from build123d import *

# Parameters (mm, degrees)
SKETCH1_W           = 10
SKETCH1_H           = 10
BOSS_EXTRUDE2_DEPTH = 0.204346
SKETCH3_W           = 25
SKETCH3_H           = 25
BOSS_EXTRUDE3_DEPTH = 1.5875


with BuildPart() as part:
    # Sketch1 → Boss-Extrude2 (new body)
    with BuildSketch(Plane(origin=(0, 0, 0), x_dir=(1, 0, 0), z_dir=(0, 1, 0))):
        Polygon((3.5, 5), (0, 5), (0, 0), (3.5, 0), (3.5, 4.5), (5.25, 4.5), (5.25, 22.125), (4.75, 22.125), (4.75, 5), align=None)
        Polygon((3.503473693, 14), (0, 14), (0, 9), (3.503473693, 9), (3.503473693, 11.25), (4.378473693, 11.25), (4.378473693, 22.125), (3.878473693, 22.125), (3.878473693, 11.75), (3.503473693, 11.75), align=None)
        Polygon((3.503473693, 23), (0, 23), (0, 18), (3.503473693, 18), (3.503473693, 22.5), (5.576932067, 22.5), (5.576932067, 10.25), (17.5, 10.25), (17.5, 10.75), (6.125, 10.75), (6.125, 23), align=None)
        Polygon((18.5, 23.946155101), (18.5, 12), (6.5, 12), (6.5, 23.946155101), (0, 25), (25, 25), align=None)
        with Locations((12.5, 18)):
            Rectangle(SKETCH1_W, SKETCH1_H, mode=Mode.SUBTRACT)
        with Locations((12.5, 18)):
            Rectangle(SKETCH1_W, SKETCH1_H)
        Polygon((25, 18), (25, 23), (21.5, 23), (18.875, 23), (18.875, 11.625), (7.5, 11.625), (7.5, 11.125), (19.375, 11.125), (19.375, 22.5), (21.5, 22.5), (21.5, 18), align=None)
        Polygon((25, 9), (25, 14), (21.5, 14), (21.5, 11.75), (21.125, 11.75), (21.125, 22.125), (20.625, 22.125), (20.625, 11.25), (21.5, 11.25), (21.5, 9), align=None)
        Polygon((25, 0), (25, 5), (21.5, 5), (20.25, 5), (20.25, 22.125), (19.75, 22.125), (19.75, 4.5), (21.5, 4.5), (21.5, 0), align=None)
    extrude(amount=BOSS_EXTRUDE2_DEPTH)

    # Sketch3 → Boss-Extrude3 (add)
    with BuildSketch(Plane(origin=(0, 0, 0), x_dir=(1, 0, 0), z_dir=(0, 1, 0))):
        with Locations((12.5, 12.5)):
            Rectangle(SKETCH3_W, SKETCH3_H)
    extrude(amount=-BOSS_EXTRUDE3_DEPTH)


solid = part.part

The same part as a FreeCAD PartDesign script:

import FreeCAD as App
import Part
import Sketcher

V = App.Vector
Q = App.Units.Quantity

doc = App.newDocument("Part")
body = doc.addObject("PartDesign::Body", "Body")
body.AllowCompound = True

sketch1 = doc.addObject("Sketcher::SketchObject", "Sketch")
body.addObject(sketch1)
sketch1.AttachmentSupport = (doc.XZ_Plane, [""])
sketch1.MapMode = "FlatFace"
sketch1.addGeometry(Part.LineSegment(V(0, -5, 0), V(0, 0, 0)), False)
sketch1.addGeometry(Part.LineSegment(V(0, 0, 0), V(3.5, 0, 0)), False)
sketch1.addGeometry(Part.LineSegment(V(3.5, 0, 0), V(3.5, -4.5, 0)), False)
sketch1.addGeometry(Part.LineSegment(V(3.5, -4.5, 0), V(5.25, -4.5, 0)), False)
sketch1.addGeometry(Part.LineSegment(V(5.25, -4.5, 0), V(5.25, -22.125, 0)), False)
sketch1.addGeometry(Part.LineSegment(V(5.25, -22.125, 0), V(4.75, -22.125, 0)), False)
sketch1.addGeometry(Part.LineSegment(V(4.75, -22.125, 0), V(4.75, -5, 0)), False)
sketch1.addGeometry(Part.LineSegment(V(4.75, -5, 0), V(0, -5, 0)), False)
sketch1.addGeometry(Part.LineSegment(V(3.503474, -14, 0), V(0, -14, 0)), False)
sketch1.addGeometry(Part.LineSegment(V(0, -14, 0), V(0, -9, 0)), False)
sketch1.addGeometry(Part.LineSegment(V(0, -9, 0), V(3.503474, -9, 0)), False)
sketch1.addGeometry(Part.LineSegment(V(3.503474, -9, 0), V(3.503474, -11.25, 0)), False)
sketch1.addGeometry(Part.LineSegment(V(3.503474, -11.25, 0), V(4.378474, -11.25, 0)), False)
sketch1.addGeometry(Part.LineSegment(V(4.378474, -11.25, 0), V(4.378474, -22.125, 0)), False)
sketch1.addGeometry(Part.LineSegment(V(4.378474, -22.125, 0), V(3.878474, -22.125, 0)), False)
sketch1.addGeometry(Part.LineSegment(V(3.878474, -22.125, 0), V(3.878474, -11.75, 0)), False)
sketch1.addGeometry(Part.LineSegment(V(3.878474, -11.75, 0), V(3.503474, -11.75, 0)), False)
sketch1.addGeometry(Part.LineSegment(V(3.503474, -11.75, 0), V(3.503474, -14, 0)), False)
sketch1.addGeometry(Part.LineSegment(V(0, -23, 0), V(0, -18, 0)), False)
sketch1.addGeometry(Part.LineSegment(V(0, -18, 0), V(3.503474, -18, 0)), False)
sketch1.addGeometry(Part.LineSegment(V(3.503474, -18, 0), V(3.503474, -22.5, 0)), False)
sketch1.addGeometry(Part.LineSegment(V(3.503474, -22.5, 0), V(5.576932, -22.5, 0)), False)
sketch1.addGeometry(Part.LineSegment(V(5.576932, -22.5, 0), V(5.576932, -10.25, 0)), False)
sketch1.addGeometry(Part.LineSegment(V(5.576932, -10.25, 0), V(17.5, -10.25, 0)), False)
sketch1.addGeometry(Part.LineSegment(V(17.5, -10.25, 0), V(17.5, -10.75, 0)), False)
sketch1.addGeometry(Part.LineSegment(V(17.5, -10.75, 0), V(6.125, -10.75, 0)), False)
sketch1.addGeometry(Part.LineSegment(V(6.125, -10.75, 0), V(6.125, -23, 0)), False)
sketch1.addGeometry(Part.LineSegment(V(6.125, -23, 0), V(0, -23, 0)), False)
sketch1.addGeometry(Part.LineSegment(V(18.5, -12, 0), V(18.5, -23.946155, 0)), False)
sketch1.addGeometry(Part.LineSegment(V(18.5, -23.946155, 0), V(25, -25, 0)), False)
sketch1.addGeometry(Part.LineSegment(V(25, -25, 0), V(0, -25, 0)), False)
sketch1.addGeometry(Part.LineSegment(V(0, -25, 0), V(6.5, -23.946155, 0)), False)
sketch1.addGeometry(Part.LineSegment(V(6.5, -23.946155, 0), V(6.5, -12, 0)), False)
sketch1.addGeometry(Part.LineSegment(V(6.5, -12, 0), V(18.5, -12, 0)), False)
sketch1.addGeometry(Part.LineSegment(V(25, -18, 0), V(25, -23, 0)), False)
sketch1.addGeometry(Part.LineSegment(V(25, -23, 0), V(18.875, -23, 0)), False)
sketch1.addGeometry(Part.LineSegment(V(18.875, -23, 0), V(18.875, -11.625, 0)), False)
sketch1.addGeometry(Part.LineSegment(V(18.875, -11.625, 0), V(7.5, -11.625, 0)), False)
sketch1.addGeometry(Part.LineSegment(V(7.5, -11.625, 0), V(7.5, -11.125, 0)), False)
sketch1.addGeometry(Part.LineSegment(V(7.5, -11.125, 0), V(19.375, -11.125, 0)), False)
sketch1.addGeometry(Part.LineSegment(V(19.375, -11.125, 0), V(19.375, -22.5, 0)), False)
sketch1.addGeometry(Part.LineSegment(V(19.375, -22.5, 0), V(21.5, -22.5, 0)), False)
sketch1.addGeometry(Part.LineSegment(V(21.5, -22.5, 0), V(21.5, -18, 0)), False)
sketch1.addGeometry(Part.LineSegment(V(21.5, -18, 0), V(25, -18, 0)), False)
sketch1.addGeometry(Part.LineSegment(V(25, -9, 0), V(25, -14, 0)), False)
sketch1.addGeometry(Part.LineSegment(V(25, -14, 0), V(21.5, -14, 0)), False)
sketch1.addGeometry(Part.LineSegment(V(21.5, -14, 0), V(21.5, -11.75, 0)), False)
sketch1.addGeometry(Part.LineSegment(V(21.5, -11.75, 0), V(21.125, -11.75, 0)), False)
sketch1.addGeometry(Part.LineSegment(V(21.125, -11.75, 0), V(21.125, -22.125, 0)), False)
sketch1.addGeometry(Part.LineSegment(V(21.125, -22.125, 0), V(20.625, -22.125, 0)), False)
sketch1.addGeometry(Part.LineSegment(V(20.625, -22.125, 0), V(20.625, -11.25, 0)), False)
sketch1.addGeometry(Part.LineSegment(V(20.625, -11.25, 0), V(21.5, -11.25, 0)), False)
sketch1.addGeometry(Part.LineSegment(V(21.5, -11.25, 0), V(21.5, -9, 0)), False)
sketch1.addGeometry(Part.LineSegment(V(21.5, -9, 0), V(25, -9, 0)), False)
sketch1.addGeometry(Part.LineSegment(V(25, 0, 0), V(25, -5, 0)), False)
sketch1.addGeometry(Part.LineSegment(V(25, -5, 0), V(20.25, -5, 0)), False)
sketch1.addGeometry(Part.LineSegment(V(20.25, -5, 0), V(20.25, -22.125, 0)), False)
sketch1.addGeometry(Part.LineSegment(V(20.25, -22.125, 0), V(19.75, -22.125, 0)), False)
sketch1.addGeometry(Part.LineSegment(V(19.75, -22.125, 0), V(19.75, -4.5, 0)), False)
sketch1.addGeometry(Part.LineSegment(V(19.75, -4.5, 0), V(21.5, -4.5, 0)), False)
sketch1.addGeometry(Part.LineSegment(V(21.5, -4.5, 0), V(21.5, 0, 0)), False)
sketch1.addGeometry(Part.LineSegment(V(21.5, 0, 0), V(25, 0, 0)), False)
sketch1.addConstraint(Sketcher.Constraint("Coincident", 0, 2, 1, 1))
sketch1.addConstraint(Sketcher.Constraint("Coincident", 1, 2, 2, 1))
sketch1.addConstraint(Sketcher.Constraint("Coincident", 2, 2, 3, 1))
sketch1.addConstraint(Sketcher.Constraint("Coincident", 3, 2, 4, 1))
sketch1.addConstraint(Sketcher.Constraint("Coincident", 4, 2, 5, 1))
sketch1.addConstraint(Sketcher.Constraint("Coincident", 5, 2, 6, 1))
sketch1.addConstraint(Sketcher.Constraint("Coincident", 6, 2, 7, 1))
sketch1.addConstraint(Sketcher.Constraint("Coincident", 7, 2, 0, 1))
sketch1.addConstraint(Sketcher.Constraint("Coincident", 8, 2, 9, 1))
sketch1.addConstraint(Sketcher.Constraint("Coincident", 9, 2, 10, 1))
sketch1.addConstraint(Sketcher.Constraint("Coincident", 10, 2, 11, 1))
sketch1.addConstraint(Sketcher.Constraint("Coincident", 11, 2, 12, 1))
sketch1.addConstraint(Sketcher.Constraint("Coincident", 12, 2, 13, 1))
sketch1.addConstraint(Sketcher.Constraint("Coincident", 13, 2, 14, 1))
sketch1.addConstraint(Sketcher.Constraint("Coincident", 14, 2, 15, 1))
sketch1.addConstraint(Sketcher.Constraint("Coincident", 15, 2, 16, 1))
sketch1.addConstraint(Sketcher.Constraint("Coincident", 16, 2, 17, 1))
sketch1.addConstraint(Sketcher.Constraint("Coincident", 17, 2, 8, 1))
sketch1.addConstraint(Sketcher.Constraint("Coincident", 18, 2, 19, 1))
sketch1.addConstraint(Sketcher.Constraint("Coincident", 19, 2, 20, 1))
sketch1.addConstraint(Sketcher.Constraint("Coincident", 20, 2, 21, 1))
sketch1.addConstraint(Sketcher.Constraint("Coincident", 21, 2, 22, 1))
sketch1.addConstraint(Sketcher.Constraint("Coincident", 22, 2, 23, 1))
sketch1.addConstraint(Sketcher.Constraint("Coincident", 23, 2, 24, 1))
sketch1.addConstraint(Sketcher.Constraint("Coincident", 24, 2, 25, 1))
sketch1.addConstraint(Sketcher.Constraint("Coincident", 25, 2, 26, 1))
sketch1.addConstraint(Sketcher.Constraint("Coincident", 26, 2, 27, 1))
sketch1.addConstraint(Sketcher.Constraint("Coincident", 27, 2, 18, 1))
sketch1.addConstraint(Sketcher.Constraint("Coincident", 28, 2, 29, 1))
sketch1.addConstraint(Sketcher.Constraint("Coincident", 29, 2, 30, 1))
sketch1.addConstraint(Sketcher.Constraint("Coincident", 30, 2, 31, 1))
sketch1.addConstraint(Sketcher.Constraint("Coincident", 31, 2, 32, 1))
sketch1.addConstraint(Sketcher.Constraint("Coincident", 32, 2, 33, 1))
sketch1.addConstraint(Sketcher.Constraint("Coincident", 33, 2, 28, 1))
sketch1.addConstraint(Sketcher.Constraint("Coincident", 34, 2, 35, 1))
sketch1.addConstraint(Sketcher.Constraint("Coincident", 35, 2, 36, 1))
sketch1.addConstraint(Sketcher.Constraint("Coincident", 36, 2, 37, 1))
sketch1.addConstraint(Sketcher.Constraint("Coincident", 37, 2, 38, 1))
sketch1.addConstraint(Sketcher.Constraint("Coincident", 38, 2, 39, 1))
sketch1.addConstraint(Sketcher.Constraint("Coincident", 39, 2, 40, 1))
sketch1.addConstraint(Sketcher.Constraint("Coincident", 40, 2, 41, 1))
sketch1.addConstraint(Sketcher.Constraint("Coincident", 41, 2, 42, 1))
sketch1.addConstraint(Sketcher.Constraint("Coincident", 42, 2, 43, 1))
sketch1.addConstraint(Sketcher.Constraint("Coincident", 43, 2, 34, 1))
sketch1.addConstraint(Sketcher.Constraint("Coincident", 44, 2, 45, 1))
sketch1.addConstraint(Sketcher.Constraint("Coincident", 45, 2, 46, 1))
sketch1.addConstraint(Sketcher.Constraint("Coincident", 46, 2, 47, 1))
sketch1.addConstraint(Sketcher.Constraint("Coincident", 47, 2, 48, 1))
sketch1.addConstraint(Sketcher.Constraint("Coincident", 48, 2, 49, 1))
sketch1.addConstraint(Sketcher.Constraint("Coincident", 49, 2, 50, 1))
sketch1.addConstraint(Sketcher.Constraint("Coincident", 50, 2, 51, 1))
sketch1.addConstraint(Sketcher.Constraint("Coincident", 51, 2, 52, 1))
sketch1.addConstraint(Sketcher.Constraint("Coincident", 52, 2, 53, 1))
sketch1.addConstraint(Sketcher.Constraint("Coincident", 53, 2, 44, 1))
sketch1.addConstraint(Sketcher.Constraint("Coincident", 54, 2, 55, 1))
sketch1.addConstraint(Sketcher.Constraint("Coincident", 55, 2, 56, 1))
sketch1.addConstraint(Sketcher.Constraint("Coincident", 56, 2, 57, 1))
sketch1.addConstraint(Sketcher.Constraint("Coincident", 57, 2, 58, 1))
sketch1.addConstraint(Sketcher.Constraint("Coincident", 58, 2, 59, 1))
sketch1.addConstraint(Sketcher.Constraint("Coincident", 59, 2, 60, 1))
sketch1.addConstraint(Sketcher.Constraint("Coincident", 60, 2, 61, 1))
sketch1.addConstraint(Sketcher.Constraint("Coincident", 61, 2, 54, 1))
sketch1.addConstraint(Sketcher.Constraint("Vertical", 0))
sketch1.addConstraint(Sketcher.Constraint("Horizontal", 1))
sketch1.addConstraint(Sketcher.Constraint("Vertical", 2))
sketch1.addConstraint(Sketcher.Constraint("Horizontal", 3))
sketch1.addConstraint(Sketcher.Constraint("Vertical", 4))
sketch1.addConstraint(Sketcher.Constraint("Horizontal", 5))
sketch1.addConstraint(Sketcher.Constraint("Vertical", 6))
sketch1.addConstraint(Sketcher.Constraint("Horizontal", 7))
sketch1.addConstraint(Sketcher.Constraint("Horizontal", 8))
sketch1.addConstraint(Sketcher.Constraint("Vertical", 9))
sketch1.addConstraint(Sketcher.Constraint("Horizontal", 10))
sketch1.addConstraint(Sketcher.Constraint("Vertical", 11))
sketch1.addConstraint(Sketcher.Constraint("Horizontal", 12))
sketch1.addConstraint(Sketcher.Constraint("Vertical", 13))
sketch1.addConstraint(Sketcher.Constraint("Horizontal", 14))
sketch1.addConstraint(Sketcher.Constraint("Vertical", 15))
sketch1.addConstraint(Sketcher.Constraint("Horizontal", 16))
sketch1.addConstraint(Sketcher.Constraint("Vertical", 17))
sketch1.addConstraint(Sketcher.Constraint("Vertical", 18))
sketch1.addConstraint(Sketcher.Constraint("Horizontal", 19))
sketch1.addConstraint(Sketcher.Constraint("Vertical", 20))
sketch1.addConstraint(Sketcher.Constraint("Horizontal", 21))
sketch1.addConstraint(Sketcher.Constraint("Vertical", 22))
sketch1.addConstraint(Sketcher.Constraint("Horizontal", 23))
sketch1.addConstraint(Sketcher.Constraint("Vertical", 24))
sketch1.addConstraint(Sketcher.Constraint("Horizontal", 25))
sketch1.addConstraint(Sketcher.Constraint("Vertical", 26))
sketch1.addConstraint(Sketcher.Constraint("Horizontal", 27))
sketch1.addConstraint(Sketcher.Constraint("Vertical", 28))
sketch1.addConstraint(Sketcher.Constraint("Horizontal", 30))
sketch1.addConstraint(Sketcher.Constraint("Vertical", 32))
sketch1.addConstraint(Sketcher.Constraint("Horizontal", 33))
sketch1.addConstraint(Sketcher.Constraint("Vertical", 34))
sketch1.addConstraint(Sketcher.Constraint("Horizontal", 35))
sketch1.addConstraint(Sketcher.Constraint("Vertical", 36))
sketch1.addConstraint(Sketcher.Constraint("Horizontal", 37))
sketch1.addConstraint(Sketcher.Constraint("Vertical", 38))
sketch1.addConstraint(Sketcher.Constraint("Horizontal", 39))
sketch1.addConstraint(Sketcher.Constraint("Vertical", 40))
sketch1.addConstraint(Sketcher.Constraint("Horizontal", 41))
sketch1.addConstraint(Sketcher.Constraint("Vertical", 42))
sketch1.addConstraint(Sketcher.Constraint("Horizontal", 43))
sketch1.addConstraint(Sketcher.Constraint("Vertical", 44))
sketch1.addConstraint(Sketcher.Constraint("Horizontal", 45))
sketch1.addConstraint(Sketcher.Constraint("Vertical", 46))
sketch1.addConstraint(Sketcher.Constraint("Horizontal", 47))
sketch1.addConstraint(Sketcher.Constraint("Vertical", 48))
sketch1.addConstraint(Sketcher.Constraint("Horizontal", 49))
sketch1.addConstraint(Sketcher.Constraint("Vertical", 50))
sketch1.addConstraint(Sketcher.Constraint("Horizontal", 51))
sketch1.addConstraint(Sketcher.Constraint("Vertical", 52))
sketch1.addConstraint(Sketcher.Constraint("Horizontal", 53))
sketch1.addConstraint(Sketcher.Constraint("Vertical", 54))
sketch1.addConstraint(Sketcher.Constraint("Horizontal", 55))
sketch1.addConstraint(Sketcher.Constraint("Vertical", 56))
sketch1.addConstraint(Sketcher.Constraint("Horizontal", 57))
sketch1.addConstraint(Sketcher.Constraint("Vertical", 58))
sketch1.addConstraint(Sketcher.Constraint("Horizontal", 59))
sketch1.addConstraint(Sketcher.Constraint("Vertical", 60))
sketch1.addConstraint(Sketcher.Constraint("Horizontal", 61))
sketch1.addConstraint(Sketcher.Constraint("Coincident", 0, 2, -1, 1))
sketch1.addConstraint(Sketcher.Constraint("PointOnObject", 8, 2, -2))
sketch1.addConstraint(Sketcher.Constraint("PointOnObject", 18, 2, -2))
sketch1.addConstraint(Sketcher.Constraint("PointOnObject", 30, 2, -2))
sketch1.addConstraint(Sketcher.Constraint("PointOnObject", 60, 2, -1))
sketch1.addConstraint(Sketcher.Constraint("Horizontal", 5, 2, 13, 2))
sketch1.addConstraint(Sketcher.Constraint("Horizontal", 28, 2, 31, 2))
sketch1.addConstraint(Sketcher.Constraint("Horizontal", 27, 2, 34, 2))
sketch1.addConstraint(Sketcher.Constraint("Horizontal", 21, 2, 40, 2))
sketch1.addConstraint(Sketcher.Constraint("Horizontal", 19, 2, 42, 2))
sketch1.addConstraint(Sketcher.Constraint("Horizontal", 17, 2, 44, 2))
sketch1.addConstraint(Sketcher.Constraint("Horizontal", 16, 2, 46, 2))
sketch1.addConstraint(Sketcher.Constraint("Horizontal", 14, 2, 48, 2))
sketch1.addConstraint(Sketcher.Constraint("Horizontal", 12, 2, 50, 2))
sketch1.addConstraint(Sketcher.Constraint("Horizontal", 10, 2, 52, 2))
sketch1.addConstraint(Sketcher.Constraint("Horizontal", 7, 2, 54, 2))
sketch1.addConstraint(Sketcher.Constraint("Horizontal", 49, 2, 56, 2))
sketch1.addConstraint(Sketcher.Constraint("Horizontal", 3, 2, 58, 2))
sketch1.addConstraint(Sketcher.Constraint("Vertical", 11, 2, 16, 2))
sketch1.addConstraint(Sketcher.Constraint("Vertical", 17, 2, 19, 2))
sketch1.addConstraint(Sketcher.Constraint("Vertical", 29, 2, 34, 2))
sketch1.addConstraint(Sketcher.Constraint("Vertical", 43, 2, 44, 2))
sketch1.addConstraint(Sketcher.Constraint("Vertical", 42, 2, 45, 2))
sketch1.addConstraint(Sketcher.Constraint("Vertical", 46, 2, 51, 2))
sketch1.addConstraint(Sketcher.Constraint("Vertical", 53, 2, 54, 2))
sketch1.addConstraint(Sketcher.Constraint("Vertical", 52, 2, 59, 2))
sketch1.addConstraint(Sketcher.Constraint("Equal", 5, 14))
sketch1.addConstraint(Sketcher.Constraint("Equal", 27, 35))
sketch1.addConstraint(Sketcher.Constraint("Equal", 25, 37))
sketch1.addConstraint(Sketcher.Constraint("Equal", 1, 43))
sketch1.addConstraint(Sketcher.Constraint("Equal", 16, 47))
sketch1.addConstraint(Sketcher.Constraint("Equal", 14, 49))
sketch1.addConstraint(Sketcher.Constraint("Equal", 7, 55))
sketch1.addConstraint(Sketcher.Constraint("Equal", 49, 57))
sketch1.addConstraint(Sketcher.Constraint("Equal", 0, 9))
sketch1.addConstraint(Sketcher.Constraint("Equal", 11, 17))
sketch1.addConstraint(Sketcher.Constraint("Equal", 9, 18))
sketch1.addConstraint(Sketcher.Constraint("Equal", 2, 20))
sketch1.addConstraint(Sketcher.Constraint("Equal", 57, 24))
sketch1.addConstraint(Sketcher.Constraint("Equal", 22, 26))
sketch1.addConstraint(Sketcher.Constraint("Equal", 37, 36))
sketch1.addConstraint(Sketcher.Constraint("Equal", 24, 38))
sketch1.addConstraint(Sketcher.Constraint("Equal", 29, 31))
sketch1.addConstraint(Sketcher.Constraint("DistanceX", 30, 2, 30, 1, Q("25 mm")))
sketch1.addConstraint(Sketcher.Constraint("DistanceX", 33, 1, 33, 2, Q("12 mm")))
sketch1.addConstraint(Sketcher.Constraint("DistanceY", 0, 1, 0, 2, Q("5 mm")))
sketch1.addConstraint(Sketcher.Constraint("DistanceX", 1, 1, 1, 2, Q("3.5 mm")))
sketch1.addConstraint(Sketcher.Constraint("DistanceX", 5, 2, 5, 1, Q("0.5 mm")))
sketch1.addConstraint(Sketcher.Constraint("DistanceY", 8, 2, -1, 1, Q("14 mm")))
sketch1.addConstraint(Sketcher.Constraint("DistanceY", 18, 2, -1, 1, Q("18 mm")))
sketch1.addConstraint(Sketcher.Constraint("DistanceY", 29, 2, -1, 1, Q("25 mm")))
sketch1.addConstraint(Sketcher.Constraint("DistanceY", 32, 2, -1, 1, Q("12 mm")))
sketch1.addConstraint(Sketcher.Constraint("DistanceX", 3, 1, 3, 2, Q("1.75 mm")))
sketch1.addConstraint(Sketcher.Constraint("DistanceY", 11, 2, 11, 1, Q("2.25 mm")))
sketch1.addConstraint(Sketcher.Constraint("DistanceY", 22, 1, 22, 2, Q("12.25 mm")))
sketch1.addConstraint(Sketcher.Constraint("DistanceX", -1, 1, 23, 2, Q("17.5 mm")))
sketch1.addConstraint(Sketcher.Constraint("DistanceX", 12, 1, 12, 2, Q("0.875 mm")))
sketch1.addConstraint(Sketcher.Constraint("DistanceX", 25, 2, 25, 1, Q("11.375 mm")))
sketch1.addConstraint(Sketcher.Constraint("DistanceX", 39, 1, 39, 2, Q("11.875 mm")))
sketch1.addConstraint(Sketcher.Constraint("DistanceY", 4, 2, 4, 1, Q("17.625 mm")))
sketch1.addConstraint(Sketcher.Constraint("DistanceX", 21, 1, 21, 2, Q("2.073458 mm")))
sketch1.addConstraint(Sketcher.Constraint("DistanceX", 8, 2, 8, 1, Q("3.503474 mm")))
sketch1.addConstraint(Sketcher.Constraint("DistanceY", 28, 2, 28, 1, Q("11.946155 mm")))
pad1 = doc.addObject("PartDesign::Pad", "Pad")
body.addObject(pad1)
pad1.Profile = sketch1
pad1.Length = 0.204346
pad1.Reversed = True

sketch2 = doc.addObject("Sketcher::SketchObject", "Sketch001")
body.addObject(sketch2)
sketch2.AttachmentSupport = (doc.XZ_Plane, [""])
sketch2.MapMode = "FlatFace"
sketch2.addGeometry(Part.LineSegment(V(0, -25, 0), V(0, 0, 0)), False)
sketch2.addGeometry(Part.LineSegment(V(0, 0, 0), V(25, 0, 0)), False)
sketch2.addGeometry(Part.LineSegment(V(25, 0, 0), V(25, -25, 0)), False)
sketch2.addGeometry(Part.LineSegment(V(25, -25, 0), V(0, -25, 0)), False)
sketch2.addConstraint(Sketcher.Constraint("Coincident", 0, 2, 1, 1))
sketch2.addConstraint(Sketcher.Constraint("Coincident", 1, 2, 2, 1))
sketch2.addConstraint(Sketcher.Constraint("Coincident", 2, 2, 3, 1))
sketch2.addConstraint(Sketcher.Constraint("Coincident", 3, 2, 0, 1))
sketch2.addConstraint(Sketcher.Constraint("Vertical", 0))
sketch2.addConstraint(Sketcher.Constraint("Horizontal", 1))
sketch2.addConstraint(Sketcher.Constraint("Vertical", 2))
sketch2.addConstraint(Sketcher.Constraint("Horizontal", 3))
sketch2.addConstraint(Sketcher.Constraint("Coincident", 0, 2, -1, 1))
sketch2.addConstraint(Sketcher.Constraint("Equal", 3, 0))
sketch2.addConstraint(Sketcher.Constraint("DistanceX", 1, 1, 1, 2, Q("25 mm")))
pad2 = doc.addObject("PartDesign::Pad", "Pad001")
body.addObject(pad2)
pad2.Profile = sketch2
pad2.Length = 1.5875

doc.recompute()
